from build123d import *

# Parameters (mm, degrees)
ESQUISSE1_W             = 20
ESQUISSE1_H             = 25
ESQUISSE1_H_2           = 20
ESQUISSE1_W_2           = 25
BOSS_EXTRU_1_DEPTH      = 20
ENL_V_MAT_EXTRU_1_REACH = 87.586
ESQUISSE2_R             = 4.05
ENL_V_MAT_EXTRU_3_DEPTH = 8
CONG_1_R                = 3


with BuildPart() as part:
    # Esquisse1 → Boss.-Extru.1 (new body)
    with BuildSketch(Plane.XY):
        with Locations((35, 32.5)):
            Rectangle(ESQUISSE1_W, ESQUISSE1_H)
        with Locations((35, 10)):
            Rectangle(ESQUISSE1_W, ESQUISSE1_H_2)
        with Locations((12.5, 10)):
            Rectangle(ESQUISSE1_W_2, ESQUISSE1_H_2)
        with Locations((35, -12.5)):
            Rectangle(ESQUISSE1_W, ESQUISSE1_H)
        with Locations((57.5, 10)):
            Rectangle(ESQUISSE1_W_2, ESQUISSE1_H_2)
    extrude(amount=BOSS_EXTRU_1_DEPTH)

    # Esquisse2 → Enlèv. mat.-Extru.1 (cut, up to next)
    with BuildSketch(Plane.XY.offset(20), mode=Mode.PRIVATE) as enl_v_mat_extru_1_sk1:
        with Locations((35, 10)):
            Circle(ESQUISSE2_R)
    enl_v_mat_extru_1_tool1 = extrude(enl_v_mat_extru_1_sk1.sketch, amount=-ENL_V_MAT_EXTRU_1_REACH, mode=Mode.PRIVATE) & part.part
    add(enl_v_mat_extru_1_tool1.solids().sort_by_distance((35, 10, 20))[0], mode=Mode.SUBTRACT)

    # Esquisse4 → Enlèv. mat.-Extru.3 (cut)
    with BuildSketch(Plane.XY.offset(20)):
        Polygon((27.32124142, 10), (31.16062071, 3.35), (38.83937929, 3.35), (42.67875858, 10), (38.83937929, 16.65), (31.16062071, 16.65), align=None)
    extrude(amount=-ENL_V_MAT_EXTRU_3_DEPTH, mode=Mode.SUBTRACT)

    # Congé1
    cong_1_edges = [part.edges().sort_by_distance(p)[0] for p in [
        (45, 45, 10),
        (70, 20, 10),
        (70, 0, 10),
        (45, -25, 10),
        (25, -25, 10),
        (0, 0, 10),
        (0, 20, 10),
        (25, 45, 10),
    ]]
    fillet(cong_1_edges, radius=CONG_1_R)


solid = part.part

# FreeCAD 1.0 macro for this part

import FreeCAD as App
import Part
import Sketcher
Q = App.Units.Quantity


def edges_at(feature, points):
    """Names of the edges that pass closest to the given points."""
    edges = feature.Shape.Edges
    near = lambda p: min(range(len(edges)), key=lambda i: edges[i].distToShape(Part.Vertex(*p))[0])
    return sorted({f"Edge{near(p) + 1}" for p in points})


def add_polygon(sketch, points):
    """Adds a closed chain of lines whose ends are joined by coincident constraints."""
    first, n = sketch.GeometryCount, len(points)
    for a, b in zip(points, points[1:] + points[:1]):
        sketch.addGeometry(Part.LineSegment(App.Vector(*a, 0), App.Vector(*b, 0)), False)
    for i in range(n):
        sketch.addConstraint(Sketcher.Constraint("Coincident", first + i, 2, first + (i + 1) % n, 1))

doc = App.newDocument("Part")
body = doc.addObject("PartDesign::Body", "Body")

# Sketch on XY plane
sketch1 = doc.addObject("Sketcher::SketchObject", "Sketch")
body.addObject(sketch1)
sketch1.AttachmentSupport = (doc.XY_Plane, [""])
sketch1.MapMode = "FlatFace"
add_polygon(sketch1, [(25, 45), (25, 20), (0, 20), (0, 0), (25, 0), (25, -25), (45, -25), (45, 0), (70, 0), (70, 20), (45, 20), (45, 45)])  # lines 0-11
sketch1.addConstraint([
    Sketcher.Constraint("Vertical", 0),
    Sketcher.Constraint("Horizontal", 1),
    Sketcher.Constraint("Vertical", 2),
    Sketcher.Constraint("Horizontal", 3),
    Sketcher.Constraint("Vertical", 4),
    Sketcher.Constraint("Horizontal", 5),
    Sketcher.Constraint("Vertical", 6),
    Sketcher.Constraint("Horizontal", 7),
    Sketcher.Constraint("Vertical", 8),
    Sketcher.Constraint("Horizontal", 9),
    Sketcher.Constraint("Vertical", 10),
    Sketcher.Constraint("Horizontal", 11),
    Sketcher.Constraint("Coincident", 2, 2, -1, 1),
    Sketcher.Constraint("PointOnObject", 6, 2, -1),
    Sketcher.Constraint("Horizontal", 1, 2, 8, 2),
    Sketcher.Constraint("Vertical", 0, 2, 3, 2),
    Sketcher.Constraint("Vertical", 6, 2, 9, 2),
    Sketcher.Constraint("Equal", 3, 7),
    Sketcher.Constraint("Equal", 9, 0),
    Sketcher.Constraint("Equal", 11, 2),
    Sketcher.Constraint("Equal", 0, 4),
    Sketcher.Constraint("DistanceX", 1, 2, 1, 1, Q("25 mm")),
    Sketcher.Constraint("DistanceX", 5, 1, 5, 2, Q("20 mm")),
])
pad1 = doc.addObject("PartDesign::Pad", "Pad")
body.addObject(pad1)
pad1.Profile = sketch1
pad1.Length = 20

# Sketch on XY plane
sketch2 = doc.addObject("Sketcher::SketchObject", "Sketch001")
body.addObject(sketch2)
sketch2.AttachmentSupport = (doc.XY_Plane, [""])
sketch2.MapMode = "FlatFace"
sketch2.AttachmentOffset = App.Placement(App.Vector(0, 0, 20), App.Rotation())
sketch2.addGeometry(Part.Circle(App.Vector(35, 10, 0), App.Vector(0, 0, 1), 4), False)
sketch2.addConstraint([
    Sketcher.Constraint("Diameter", 0, Q("8.1 mm")),
    Sketcher.Constraint("DistanceX", -1, 1, 0, 3, Q("35 mm")),
    Sketcher.Constraint("DistanceY", -1, 1, 0, 3, Q("10 mm")),
])
pocket1 = doc.addObject("PartDesign::Pocket", "Pocket")
body.addObject(pocket1)
pocket1.Profile = sketch2
pocket1.Type = "UpToFirst"

# Sketch on XY plane
sketch3 = doc.addObject("Sketcher::SketchObject", "Sketch002")
body.addObject(sketch3)
sketch3.AttachmentSupport = (doc.XY_Plane, [""])
sketch3.MapMode = "FlatFace"
sketch3.AttachmentOffset = App.Placement(App.Vector(0, 0, 20), App.Rotation())
add_polygon(sketch3, [(27, 10), (31, 3), (39, 3), (43, 10), (39, 17), (31, 17)])  # lines 0-5
sketch3.addConstraint([
    Sketcher.Constraint("Horizontal", 1),
    Sketcher.Constraint("Horizontal", 4),
    Sketcher.Constraint("Parallel", 0, 3),
    Sketcher.Constraint("Parallel", 2, 5),
    Sketcher.Constraint("Horizontal", 2, 2, 5, 2),
    Sketcher.Constraint("Vertical", 1, 2, 3, 2),
    Sketcher.Constraint("Vertical", 0, 2, 4, 2),
    Sketcher.Constraint("Angle", 0, Q("-60 deg")),
    Sketcher.Constraint("DistanceY", -1, 1, 2, 2, Q("10 mm")),
    Sketcher.Constraint("DistanceY", 1, 2, 3, 2, Q("13.3 mm")),
    Sketcher.Constraint("DistanceX", 1, 1, 1, 2, Q("7.678759 mm")),
    Sketcher.Constraint("DistanceX", -1, 1, 0, 2, Q("31.160621 mm")),
])
pocket2 = doc.addObject("PartDesign::Pocket", "Pocket001")
body.addObject(pocket2)
pocket2.Profile = sketch3
pocket2.Length = 8
doc.recompute()

fillet = doc.addObject("PartDesign::Fillet", "Fillet")
body.addObject(fillet)
fillet.Base = (pocket2, edges_at(pocket2, [
    (45, 45, 10),
    (70, 20, 10),
    (70, 0, 10),
    (45, -25, 10),
    (25, -25, 10),
    (0, 0, 10),
    (0, 20, 10),
    (25, 45, 10),
]))
fillet.Radius = 3

doc.recompute()
